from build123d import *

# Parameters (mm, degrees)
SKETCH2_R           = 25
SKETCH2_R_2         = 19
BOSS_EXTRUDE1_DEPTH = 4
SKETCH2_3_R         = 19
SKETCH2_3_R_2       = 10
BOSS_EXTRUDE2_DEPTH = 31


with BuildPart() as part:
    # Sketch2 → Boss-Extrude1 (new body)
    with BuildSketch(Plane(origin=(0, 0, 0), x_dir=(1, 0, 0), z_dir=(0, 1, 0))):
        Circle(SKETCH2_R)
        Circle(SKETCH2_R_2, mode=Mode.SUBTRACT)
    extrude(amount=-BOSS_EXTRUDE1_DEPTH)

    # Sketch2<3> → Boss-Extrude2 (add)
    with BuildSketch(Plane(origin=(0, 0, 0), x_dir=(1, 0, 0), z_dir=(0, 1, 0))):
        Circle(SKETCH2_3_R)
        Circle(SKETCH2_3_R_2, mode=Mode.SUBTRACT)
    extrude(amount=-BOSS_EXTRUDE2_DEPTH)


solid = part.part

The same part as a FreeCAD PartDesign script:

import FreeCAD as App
import Part
import Sketcher
from FreeCAD import Vector
Q = App.Units.Quantity

doc = App.newDocument("Part")
body = doc.addObject("PartDesign::Body", "Body")

# Sketch on XZ plane
sketch1 = doc.addObject("Sketcher::SketchObject", "Sketch")
body.addObject(sketch1)
sketch1.AttachmentSupport = (doc.XZ_Plane, [""])
sketch1.MapMode = "FlatFace"
sketch1.addGeometry([
    Part.Circle(Vector(0, 0, 0), Vector(0, 0, 1), 25),
    Part.Circle(Vector(0, 0, 0), Vector(0, 0, 1), 19),
], False)
sketch1.addConstraint([
    Sketcher.Constraint("Coincident", 0, 3, -1, 1),
    Sketcher.Constraint("Coincident", 1, 3, -1, 1),
    Sketcher.Constraint("Diameter", 0, Q("50 mm")),
    Sketcher.Constraint("Diameter", 1, Q("38 mm")),
])
pad1 = doc.addObject("PartDesign::Pad", "Pad")
body.addObject(pad1)
pad1.Profile = sketch1
pad1.Length = 4

# Sketch on XZ plane
sketch2 = doc.addObject("Sketcher::SketchObject", "Sketch001")
body.addObject(sketch2)
sketch2.AttachmentSupport = (doc.XZ_Plane, [""])
sketch2.MapMode = "FlatFace"
sketch2.addGeometry([
    Part.Circle(Vector(0, 0, 0), Vector(0, 0, 1), 19),
    Part.Circle(Vector(0, 0, 0), Vector(0, 0, 1), 10),
], False)
sketch2.addConstraint([
    Sketcher.Constraint("Coincident", 0, 3, -1, 1),
    Sketcher.Constraint("Coincident", 1, 3, -1, 1),
    Sketcher.Constraint("Diameter", 0, Q("38 mm")),
    Sketcher.Constraint("Diameter", 1, Q("20 mm")),
])
pad2 = doc.addObject("PartDesign::Pad", "Pad001")
body.addObject(pad2)
pad2.Profile = sketch2
pad2.Length = 31

doc.recompute()
